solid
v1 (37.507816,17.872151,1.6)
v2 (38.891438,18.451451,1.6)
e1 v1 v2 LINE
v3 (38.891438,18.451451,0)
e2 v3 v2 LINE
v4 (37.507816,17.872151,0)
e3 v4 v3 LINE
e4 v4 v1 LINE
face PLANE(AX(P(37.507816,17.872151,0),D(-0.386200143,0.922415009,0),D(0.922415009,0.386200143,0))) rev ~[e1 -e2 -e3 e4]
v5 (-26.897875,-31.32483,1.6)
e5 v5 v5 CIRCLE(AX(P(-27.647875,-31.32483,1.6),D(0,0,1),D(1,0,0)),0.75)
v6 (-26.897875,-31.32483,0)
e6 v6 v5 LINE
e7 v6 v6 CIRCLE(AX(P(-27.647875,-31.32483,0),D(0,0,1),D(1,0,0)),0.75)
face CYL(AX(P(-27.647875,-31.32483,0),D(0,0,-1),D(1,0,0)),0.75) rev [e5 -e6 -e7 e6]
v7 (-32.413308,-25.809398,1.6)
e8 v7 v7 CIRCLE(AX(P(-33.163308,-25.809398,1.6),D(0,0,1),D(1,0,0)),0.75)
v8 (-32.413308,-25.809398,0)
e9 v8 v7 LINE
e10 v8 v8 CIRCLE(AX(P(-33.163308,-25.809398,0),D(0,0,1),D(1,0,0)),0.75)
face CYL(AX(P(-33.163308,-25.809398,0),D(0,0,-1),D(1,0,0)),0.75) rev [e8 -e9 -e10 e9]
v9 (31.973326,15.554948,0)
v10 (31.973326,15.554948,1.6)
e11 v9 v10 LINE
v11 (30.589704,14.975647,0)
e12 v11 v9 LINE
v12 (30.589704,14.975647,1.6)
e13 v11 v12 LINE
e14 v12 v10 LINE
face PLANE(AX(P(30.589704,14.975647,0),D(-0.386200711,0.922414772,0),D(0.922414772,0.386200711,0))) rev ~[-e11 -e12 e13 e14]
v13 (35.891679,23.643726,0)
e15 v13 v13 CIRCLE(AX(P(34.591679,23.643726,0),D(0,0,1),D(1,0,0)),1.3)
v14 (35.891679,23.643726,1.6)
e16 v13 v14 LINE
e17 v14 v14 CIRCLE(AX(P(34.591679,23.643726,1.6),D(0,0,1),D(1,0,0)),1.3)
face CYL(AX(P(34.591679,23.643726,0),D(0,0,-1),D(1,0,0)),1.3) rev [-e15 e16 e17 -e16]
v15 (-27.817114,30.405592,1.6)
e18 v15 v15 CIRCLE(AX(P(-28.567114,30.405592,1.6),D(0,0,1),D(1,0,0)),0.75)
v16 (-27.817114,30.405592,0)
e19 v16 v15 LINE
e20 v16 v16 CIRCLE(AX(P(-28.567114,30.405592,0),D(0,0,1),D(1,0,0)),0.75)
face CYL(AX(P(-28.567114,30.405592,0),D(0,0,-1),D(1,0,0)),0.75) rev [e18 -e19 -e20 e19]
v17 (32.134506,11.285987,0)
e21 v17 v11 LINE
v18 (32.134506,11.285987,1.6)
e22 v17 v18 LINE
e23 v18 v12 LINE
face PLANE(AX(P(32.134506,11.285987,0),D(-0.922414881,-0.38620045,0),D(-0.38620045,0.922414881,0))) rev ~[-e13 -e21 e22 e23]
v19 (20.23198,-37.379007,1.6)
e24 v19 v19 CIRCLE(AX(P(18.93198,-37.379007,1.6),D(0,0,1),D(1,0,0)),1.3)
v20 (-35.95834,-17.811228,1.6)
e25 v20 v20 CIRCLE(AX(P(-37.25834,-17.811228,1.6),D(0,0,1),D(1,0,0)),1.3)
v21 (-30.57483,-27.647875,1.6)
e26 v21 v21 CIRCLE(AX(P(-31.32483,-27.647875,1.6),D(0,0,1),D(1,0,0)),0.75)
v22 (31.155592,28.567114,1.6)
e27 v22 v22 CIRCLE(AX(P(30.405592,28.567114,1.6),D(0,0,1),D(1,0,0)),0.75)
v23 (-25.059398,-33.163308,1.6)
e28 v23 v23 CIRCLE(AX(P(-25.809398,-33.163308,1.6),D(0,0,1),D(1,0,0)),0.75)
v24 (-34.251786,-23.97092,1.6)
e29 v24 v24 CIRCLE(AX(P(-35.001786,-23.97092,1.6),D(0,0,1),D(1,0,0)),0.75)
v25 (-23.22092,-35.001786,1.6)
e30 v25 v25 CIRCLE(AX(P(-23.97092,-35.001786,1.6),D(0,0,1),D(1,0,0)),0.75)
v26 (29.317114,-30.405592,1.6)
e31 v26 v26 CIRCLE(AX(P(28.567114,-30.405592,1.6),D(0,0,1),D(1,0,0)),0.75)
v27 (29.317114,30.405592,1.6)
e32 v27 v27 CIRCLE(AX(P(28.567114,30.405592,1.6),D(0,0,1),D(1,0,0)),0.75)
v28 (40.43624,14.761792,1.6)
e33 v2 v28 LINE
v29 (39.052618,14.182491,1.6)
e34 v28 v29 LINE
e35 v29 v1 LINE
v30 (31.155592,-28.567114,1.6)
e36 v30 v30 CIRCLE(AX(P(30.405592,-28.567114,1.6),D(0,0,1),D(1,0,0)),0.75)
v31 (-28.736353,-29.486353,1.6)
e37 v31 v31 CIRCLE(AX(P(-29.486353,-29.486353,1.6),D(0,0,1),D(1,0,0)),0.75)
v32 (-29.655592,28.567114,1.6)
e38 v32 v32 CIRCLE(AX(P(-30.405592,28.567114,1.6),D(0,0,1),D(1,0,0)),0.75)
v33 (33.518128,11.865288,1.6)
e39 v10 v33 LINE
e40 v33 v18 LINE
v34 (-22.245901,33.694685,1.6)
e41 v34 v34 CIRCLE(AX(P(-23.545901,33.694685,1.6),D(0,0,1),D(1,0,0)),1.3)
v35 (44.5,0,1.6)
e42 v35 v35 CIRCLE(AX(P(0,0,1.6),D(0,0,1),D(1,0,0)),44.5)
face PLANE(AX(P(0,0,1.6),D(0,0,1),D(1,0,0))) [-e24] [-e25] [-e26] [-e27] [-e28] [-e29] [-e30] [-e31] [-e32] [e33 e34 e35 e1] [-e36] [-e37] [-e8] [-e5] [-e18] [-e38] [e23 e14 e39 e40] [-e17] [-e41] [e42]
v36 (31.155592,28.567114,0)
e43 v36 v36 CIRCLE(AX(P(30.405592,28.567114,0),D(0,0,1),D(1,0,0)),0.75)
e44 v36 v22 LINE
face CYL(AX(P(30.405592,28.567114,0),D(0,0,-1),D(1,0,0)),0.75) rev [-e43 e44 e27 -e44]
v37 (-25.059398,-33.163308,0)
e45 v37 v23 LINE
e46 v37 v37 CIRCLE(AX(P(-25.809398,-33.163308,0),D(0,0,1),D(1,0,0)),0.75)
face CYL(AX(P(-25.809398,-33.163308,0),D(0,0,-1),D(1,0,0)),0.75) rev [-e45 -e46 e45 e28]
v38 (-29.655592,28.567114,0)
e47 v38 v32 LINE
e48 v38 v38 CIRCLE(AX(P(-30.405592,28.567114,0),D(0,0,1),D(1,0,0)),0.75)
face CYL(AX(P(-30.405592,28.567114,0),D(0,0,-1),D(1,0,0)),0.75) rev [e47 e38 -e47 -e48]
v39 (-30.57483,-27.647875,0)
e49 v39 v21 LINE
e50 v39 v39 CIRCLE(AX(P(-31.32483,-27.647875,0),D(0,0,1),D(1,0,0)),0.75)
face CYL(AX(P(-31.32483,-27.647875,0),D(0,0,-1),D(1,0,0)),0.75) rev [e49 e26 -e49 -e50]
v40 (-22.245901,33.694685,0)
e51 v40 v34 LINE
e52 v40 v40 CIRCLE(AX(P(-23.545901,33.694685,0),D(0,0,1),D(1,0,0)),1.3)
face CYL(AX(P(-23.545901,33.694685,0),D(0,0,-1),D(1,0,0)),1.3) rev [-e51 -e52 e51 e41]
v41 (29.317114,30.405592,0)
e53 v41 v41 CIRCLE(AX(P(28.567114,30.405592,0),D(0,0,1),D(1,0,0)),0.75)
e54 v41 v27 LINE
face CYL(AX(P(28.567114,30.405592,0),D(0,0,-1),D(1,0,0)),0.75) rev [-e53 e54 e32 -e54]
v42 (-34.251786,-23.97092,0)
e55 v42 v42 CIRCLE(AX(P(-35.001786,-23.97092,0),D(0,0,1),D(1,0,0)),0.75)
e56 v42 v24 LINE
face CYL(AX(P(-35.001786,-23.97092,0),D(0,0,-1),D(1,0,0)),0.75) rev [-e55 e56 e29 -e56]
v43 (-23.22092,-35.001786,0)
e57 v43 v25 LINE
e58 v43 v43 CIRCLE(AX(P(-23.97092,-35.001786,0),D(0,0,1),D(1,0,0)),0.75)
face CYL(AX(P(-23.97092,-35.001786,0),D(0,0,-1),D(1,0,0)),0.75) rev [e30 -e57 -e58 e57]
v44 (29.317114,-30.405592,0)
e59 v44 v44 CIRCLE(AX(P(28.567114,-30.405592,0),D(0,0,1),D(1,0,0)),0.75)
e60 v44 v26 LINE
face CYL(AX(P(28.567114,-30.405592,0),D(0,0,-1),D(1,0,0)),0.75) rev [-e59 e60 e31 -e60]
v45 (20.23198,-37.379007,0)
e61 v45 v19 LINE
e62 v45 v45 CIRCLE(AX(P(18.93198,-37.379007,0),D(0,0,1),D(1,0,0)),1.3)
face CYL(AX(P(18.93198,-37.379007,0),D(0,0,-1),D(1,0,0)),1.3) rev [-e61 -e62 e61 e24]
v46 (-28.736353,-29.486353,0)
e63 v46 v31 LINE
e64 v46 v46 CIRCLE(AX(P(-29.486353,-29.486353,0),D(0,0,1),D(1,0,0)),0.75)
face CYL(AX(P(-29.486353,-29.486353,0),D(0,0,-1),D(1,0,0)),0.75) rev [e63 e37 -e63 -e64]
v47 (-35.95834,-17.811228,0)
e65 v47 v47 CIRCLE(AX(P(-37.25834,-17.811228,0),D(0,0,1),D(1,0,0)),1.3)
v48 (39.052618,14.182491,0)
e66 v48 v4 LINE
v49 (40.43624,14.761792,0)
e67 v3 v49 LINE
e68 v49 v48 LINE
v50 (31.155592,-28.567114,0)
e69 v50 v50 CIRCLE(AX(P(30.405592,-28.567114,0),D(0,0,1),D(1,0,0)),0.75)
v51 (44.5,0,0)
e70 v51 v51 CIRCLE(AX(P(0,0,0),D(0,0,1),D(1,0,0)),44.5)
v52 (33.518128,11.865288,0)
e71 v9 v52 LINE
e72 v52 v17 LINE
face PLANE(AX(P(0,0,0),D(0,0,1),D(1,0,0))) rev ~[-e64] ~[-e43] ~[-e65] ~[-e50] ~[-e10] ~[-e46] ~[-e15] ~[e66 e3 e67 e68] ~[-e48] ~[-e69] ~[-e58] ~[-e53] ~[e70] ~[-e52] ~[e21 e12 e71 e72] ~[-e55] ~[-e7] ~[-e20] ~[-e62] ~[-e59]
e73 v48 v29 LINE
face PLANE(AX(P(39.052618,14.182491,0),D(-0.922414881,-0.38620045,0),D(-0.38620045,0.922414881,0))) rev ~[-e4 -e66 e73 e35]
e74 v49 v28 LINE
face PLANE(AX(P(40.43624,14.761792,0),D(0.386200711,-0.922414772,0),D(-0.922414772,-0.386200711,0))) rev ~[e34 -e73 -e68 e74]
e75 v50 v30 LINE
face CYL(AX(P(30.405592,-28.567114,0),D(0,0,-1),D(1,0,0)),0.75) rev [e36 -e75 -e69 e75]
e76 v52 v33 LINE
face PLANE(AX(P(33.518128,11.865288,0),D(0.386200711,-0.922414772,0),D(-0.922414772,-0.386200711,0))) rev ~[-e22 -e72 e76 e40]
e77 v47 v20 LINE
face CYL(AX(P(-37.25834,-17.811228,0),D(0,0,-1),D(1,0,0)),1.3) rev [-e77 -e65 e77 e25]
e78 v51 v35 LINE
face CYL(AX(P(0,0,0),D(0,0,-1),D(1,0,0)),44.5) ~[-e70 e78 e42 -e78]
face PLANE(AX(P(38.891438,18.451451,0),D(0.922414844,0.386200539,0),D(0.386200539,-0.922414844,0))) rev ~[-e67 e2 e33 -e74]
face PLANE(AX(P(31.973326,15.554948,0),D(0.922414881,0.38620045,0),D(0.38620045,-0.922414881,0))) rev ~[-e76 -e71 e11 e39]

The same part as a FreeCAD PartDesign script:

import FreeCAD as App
import Part
import Sketcher
from FreeCAD import Vector

doc = App.newDocument("Part")
body = doc.addObject("PartDesign::Body", "Body")

# Sketch on XY plane
sketch1 = body.newObject("Sketcher::SketchObject", "Sketch")
sketch1.AttachmentSupport = (doc.getObject("XY_Plane"), [""])
sketch1.MapMode = "FlatFace"
sketch1.addGeometry([
    Part.Circle(Vector(0, 0, 0), Vector(0, 0, 1), 44.5),  # 0
    Part.Circle(Vector(-29.5, -29.5, 0), Vector(0, 0, 1), 0.8),  # 1
    Part.Circle(Vector(-24, -35, 0), Vector(0, 0, 1), 0.8),  # 2
    Part.Circle(Vector(-25.8, -33.2, 0), Vector(0, 0, 1), 0.8),  # 3
    Part.Circle(Vector(-27.6, -31.3, 0), Vector(0, 0, 1), 0.8),  # 4
    Part.Circle(Vector(-31.3, -27.6, 0), Vector(0, 0, 1), 0.8),  # 5
    Part.Circle(Vector(-33.2, -25.8, 0), Vector(0, 0, 1), 0.8),  # 6
    Part.Circle(Vector(-35, -24, 0), Vector(0, 0, 1), 0.8),  # 7
    Part.Circle(Vector(-37.3, -17.8, 0), Vector(0, 0, 1), 1.3),  # 8
    Part.Circle(Vector(18.9, -37.4, 0), Vector(0, 0, 1), 1.3),  # 9
    Part.Circle(Vector(28.6, -30.4, 0), Vector(0, 0, 1), 0.8),  # 10
    Part.Circle(Vector(30.4, -28.6, 0), Vector(0, 0, 1), 0.8),  # 11
    Part.Circle(Vector(-30.4, 28.6, 0), Vector(0, 0, 1), 0.8),  # 12
    Part.Circle(Vector(-28.6, 30.4, 0), Vector(0, 0, 1), 0.8),  # 13
    Part.Circle(Vector(-23.5, 33.7, 0), Vector(0, 0, 1), 1.3),  # 14
    Part.LineSegment(Vector(32, 15.6, 0), Vector(33.5, 11.9, 0)),  # 15
    Part.LineSegment(Vector(33.5, 11.9, 0), Vector(32.1, 11.3, 0)),  # 16
    Part.LineSegment(Vector(32.1, 11.3, 0), Vector(30.6, 15, 0)),  # 17
    Part.LineSegment(Vector(30.6, 15, 0), Vector(32, 15.6, 0)),  # 18
    Part.LineSegment(Vector(38.9, 18.5, 0), Vector(40.4, 14.8, 0)),  # 19
    Part.LineSegment(Vector(40.4, 14.8, 0), Vector(39.1, 14.2, 0)),  # 20
    Part.LineSegment(Vector(39.1, 14.2, 0), Vector(37.5, 17.9, 0)),  # 21
    Part.LineSegment(Vector(37.5, 17.9, 0), Vector(38.9, 18.5, 0)),  # 22
    Part.Circle(Vector(34.6, 23.6, 0), Vector(0, 0, 1), 1.3),  # 23
    Part.Circle(Vector(30.4, 28.6, 0), Vector(0, 0, 1), 0.8),  # 24
    Part.Circle(Vector(28.6, 30.4, 0), Vector(0, 0, 1), 0.8),  # 25
], False)
sketch1.addConstraint([
    Sketcher.Constraint("Coincident", 15, 2, 16, 1),
    Sketcher.Constraint("Coincident", 16, 2, 17, 1),
    Sketcher.Constraint("Coincident", 17, 2, 18, 1),
    Sketcher.Constraint("Coincident", 18, 2, 15, 1),
    Sketcher.Constraint("Coincident", 19, 2, 20, 1),
    Sketcher.Constraint("Coincident", 20, 2, 21, 1),
    Sketcher.Constraint("Coincident", 21, 2, 22, 1),
    Sketcher.Constraint("Coincident", 22, 2, 19, 1),
    Sketcher.Constraint("Coincident", 0, 3, -1, 1),
    Sketcher.Constraint("Equal", 1, 2),
    Sketcher.Constraint("Equal", 2, 3),
    Sketcher.Constraint("Equal", 3, 4),
    Sketcher.Constraint("Equal", 4, 5),
    Sketcher.Constraint("Equal", 5, 6),
    Sketcher.Constraint("Equal", 6, 7),
    Sketcher.Constraint("Equal", 8, 9),
    Sketcher.Constraint("Equal", 7, 10),
    Sketcher.Constraint("Equal", 10, 11),
    Sketcher.Constraint("Equal", 11, 12),
    Sketcher.Constraint("Equal", 12, 13),
    Sketcher.Constraint("Equal", 9, 14),
    Sketcher.Constraint("Equal", 14, 23),
    Sketcher.Constraint("Equal", 13, 24),
    Sketcher.Constraint("Equal", 24, 25),
    Sketcher.Constraint("Symmetric", 11, 3, 12, 3, -1, 1),
    Sketcher.Constraint("Symmetric", 10, 3, 13, 3, -1, 1),
    Sketcher.Constraint("Symmetric", 12, 3, 24, 3, -2),
    Sketcher.Constraint("Symmetric", 13, 3, 25, 3, -2),
    Sketcher.Constraint("Perpendicular", 15, 16),
    Sketcher.Constraint("Perpendicular", 16, 17),
    Sketcher.Constraint("Perpendicular", 17, 18),
    Sketcher.Constraint("Perpendicular", 18, 19),
    Sketcher.Constraint("Perpendicular", 19, 20),
    Sketcher.Constraint("Perpendicular", 20, 21),
    Sketcher.Constraint("Perpendicular", 21, 22),
    Sketcher.Constraint("Equal", 17, 19),
    Sketcher.Constraint("Equal", 18, 20),
    Sketcher.Constraint("Diameter", 0, 89.0),
    Sketcher.Constraint("Diameter", 1, 1.5),
    Sketcher.Constraint("Diameter", 8, 2.6),
    Sketcher.Constraint("Distance", 15, 4.000001),
    Sketcher.Constraint("Distance", 16, 1.5),
    Sketcher.Constraint("DistanceX", 3, 3, -1, 1, 25.809398),
    Sketcher.Constraint("DistanceY", 6, 3, -1, 1, 25.809398),
    Sketcher.Constraint("DistanceX", 14, 3, -1, 1, 23.545901),
    Sketcher.Constraint("DistanceY", 4, 3, 8, 3, 13.513602),
    Sketcher.Constraint("DistanceX", 2, 3, 9, 3, 42.9029),
    Sketcher.Constraint("DistanceY", 9, 3, 3, 3, 4.215699),
    Sketcher.Constraint("DistanceX", 9, 3, 23, 3, 15.659699),
    Sketcher.Constraint("DistanceY", 11, 3, 15, 2, 40.432402),
    Sketcher.Constraint("DistanceY", 16, 2, 15, 2, 0.579301),
    Sketcher.Constraint("DistanceX", 2, 3, -1, 1, 23.97092),
    Sketcher.Constraint("DistanceY", 4, 3, -1, 1, 31.32483),
    Sketcher.Constraint("DistanceX", 5, 3, -1, 1, 31.32483),
    Sketcher.Constraint("DistanceY", 7, 3, -1, 1, 23.97092),
    Sketcher.Constraint("DistanceX", 8, 3, -1, 1, 37.25834),
    Sketcher.Constraint("DistanceY", 10, 3, -1, 1, 30.405592),
    Sketcher.Constraint("DistanceX", -1, 1, 11, 3, 30.405592),
    Sketcher.Constraint("DistanceX", -1, 1, 19, 2, 40.43624),
    Sketcher.Constraint("DistanceY", -1, 1, 20, 2, 14.182491),
    Sketcher.Constraint("DistanceY", 2, 3, 3, 3, 1.838478),
    Sketcher.Constraint("DistanceX", 1, 3, 4, 3, 1.838478),
    Sketcher.Constraint("DistanceY", 3, 3, 4, 3, 1.838478),
    Sketcher.Constraint("DistanceY", 1, 3, 5, 3, 1.838478),
    Sketcher.Constraint("DistanceY", 2, 3, 5, 3, 7.353911),
    Sketcher.Constraint("DistanceX", 6, 3, 5, 3, 1.838478),
    Sketcher.Constraint("DistanceX", 7, 3, 6, 3, 1.838478),
    Sketcher.Constraint("DistanceX", 7, 3, 4, 3, 7.353911),
    Sketcher.Constraint("DistanceX", 4, 3, 10, 3, 56.214989),
    Sketcher.Constraint("DistanceY", 5, 3, 12, 3, 56.214989),
    Sketcher.Constraint("DistanceY", 12, 3, 14, 3, 5.127571),
    Sketcher.Constraint("DistanceY", 11, 3, 23, 3, 52.21084),
    Sketcher.Constraint("DistanceX", 15, 2, 23, 3, 1.073551),
])
pad1 = body.newObject("PartDesign::Pad", "Pad")
pad1.Profile = sketch1
pad1.Length = 1.6

doc.recompute()
